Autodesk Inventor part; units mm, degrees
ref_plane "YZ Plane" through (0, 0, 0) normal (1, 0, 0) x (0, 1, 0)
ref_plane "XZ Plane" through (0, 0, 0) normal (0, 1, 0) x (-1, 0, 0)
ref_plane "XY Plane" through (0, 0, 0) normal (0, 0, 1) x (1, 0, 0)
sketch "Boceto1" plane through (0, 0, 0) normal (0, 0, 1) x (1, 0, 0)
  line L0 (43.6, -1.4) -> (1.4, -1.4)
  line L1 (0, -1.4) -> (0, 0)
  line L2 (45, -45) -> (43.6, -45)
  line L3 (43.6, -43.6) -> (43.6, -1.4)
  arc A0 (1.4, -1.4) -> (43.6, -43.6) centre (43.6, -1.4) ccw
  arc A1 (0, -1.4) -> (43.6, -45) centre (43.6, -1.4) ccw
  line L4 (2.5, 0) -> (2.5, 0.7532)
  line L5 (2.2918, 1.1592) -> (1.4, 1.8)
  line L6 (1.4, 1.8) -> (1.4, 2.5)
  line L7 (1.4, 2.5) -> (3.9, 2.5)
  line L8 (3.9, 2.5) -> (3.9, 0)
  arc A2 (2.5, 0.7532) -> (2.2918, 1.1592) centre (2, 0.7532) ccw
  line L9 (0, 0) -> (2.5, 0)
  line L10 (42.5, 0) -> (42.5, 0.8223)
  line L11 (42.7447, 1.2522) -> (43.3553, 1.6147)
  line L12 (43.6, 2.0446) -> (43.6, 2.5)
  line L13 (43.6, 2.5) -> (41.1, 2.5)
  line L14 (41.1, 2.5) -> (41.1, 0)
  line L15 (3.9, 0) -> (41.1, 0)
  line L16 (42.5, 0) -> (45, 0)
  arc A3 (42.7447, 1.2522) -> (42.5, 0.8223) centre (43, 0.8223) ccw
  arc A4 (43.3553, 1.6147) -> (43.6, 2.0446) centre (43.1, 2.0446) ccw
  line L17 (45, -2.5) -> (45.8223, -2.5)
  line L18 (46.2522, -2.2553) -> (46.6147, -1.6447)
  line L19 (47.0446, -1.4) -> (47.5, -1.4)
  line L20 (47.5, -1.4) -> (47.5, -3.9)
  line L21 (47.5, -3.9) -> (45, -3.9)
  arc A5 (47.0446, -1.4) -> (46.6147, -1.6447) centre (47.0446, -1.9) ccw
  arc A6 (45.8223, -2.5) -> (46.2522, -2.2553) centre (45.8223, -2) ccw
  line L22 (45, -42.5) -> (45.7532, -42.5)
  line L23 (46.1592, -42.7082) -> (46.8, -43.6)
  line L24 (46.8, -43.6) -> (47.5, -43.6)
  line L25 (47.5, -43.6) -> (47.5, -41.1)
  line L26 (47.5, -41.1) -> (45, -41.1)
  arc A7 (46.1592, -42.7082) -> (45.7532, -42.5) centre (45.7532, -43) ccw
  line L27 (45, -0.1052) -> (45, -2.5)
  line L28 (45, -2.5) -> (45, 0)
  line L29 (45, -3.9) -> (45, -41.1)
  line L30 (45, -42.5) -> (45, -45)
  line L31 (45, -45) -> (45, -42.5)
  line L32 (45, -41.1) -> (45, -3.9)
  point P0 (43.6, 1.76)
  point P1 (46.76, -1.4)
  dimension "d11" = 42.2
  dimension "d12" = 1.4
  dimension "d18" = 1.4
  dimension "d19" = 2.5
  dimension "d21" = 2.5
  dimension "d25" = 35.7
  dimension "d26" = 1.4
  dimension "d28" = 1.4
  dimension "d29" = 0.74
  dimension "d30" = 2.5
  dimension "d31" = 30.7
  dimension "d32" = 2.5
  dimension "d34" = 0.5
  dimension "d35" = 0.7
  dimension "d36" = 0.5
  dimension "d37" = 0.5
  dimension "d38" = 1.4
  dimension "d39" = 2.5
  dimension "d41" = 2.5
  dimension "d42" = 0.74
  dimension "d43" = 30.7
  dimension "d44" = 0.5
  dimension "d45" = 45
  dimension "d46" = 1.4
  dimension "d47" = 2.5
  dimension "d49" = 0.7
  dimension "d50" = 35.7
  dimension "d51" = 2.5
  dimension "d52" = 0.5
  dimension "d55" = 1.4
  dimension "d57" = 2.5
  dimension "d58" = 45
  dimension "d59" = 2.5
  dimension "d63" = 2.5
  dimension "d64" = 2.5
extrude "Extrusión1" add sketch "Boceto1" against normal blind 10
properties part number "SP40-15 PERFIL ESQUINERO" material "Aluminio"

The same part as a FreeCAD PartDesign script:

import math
import FreeCAD as App
import Part
import Sketcher
from FreeCAD import Vector
Q = App.Units.Quantity

doc = App.newDocument("Part")
body = doc.addObject("PartDesign::Body", "Body")

sketch1 = body.newObject("Sketcher::SketchObject", "Sketch")
sketch1.AttachmentSupport = (doc.getObject("XY_Plane"), [""])
sketch1.MapMode = "FlatFace"
sketch1.addGeometry(Part.LineSegment(Vector(0, 0, 0), Vector(0, -1.4, 0)), False)
sketch1.addGeometry(Part.ArcOfCircle(Part.Circle(Vector(43.6, -1.4, 0), Vector(0, 0, 1), 43.6), math.radians(180), math.radians(270)), False)
sketch1.addGeometry(Part.LineSegment(Vector(43.6, -45, 0), Vector(45, -45, 0)), False)
sketch1.addGeometry(Part.LineSegment(Vector(45, -45, 0), Vector(45, -42.5, 0)), False)
sketch1.addGeometry(Part.LineSegment(Vector(45, -42.5, 0), Vector(45.75, -42.5, 0)), False)
sketch1.addGeometry(Part.ArcOfCircle(Part.Circle(Vector(45.75, -43, 0), Vector(0, 0, 1), 0.5), math.radians(36), math.radians(90)), False)
sketch1.addGeometry(Part.LineSegment(Vector(46.16, -42.71, 0), Vector(46.8, -43.6, 0)), False)
sketch1.addGeometry(Part.LineSegment(Vector(46.8, -43.6, 0), Vector(47.5, -43.6, 0)), False)
sketch1.addGeometry(Part.LineSegment(Vector(47.5, -43.6, 0), Vector(47.5, -41.1, 0)), False)
sketch1.addGeometry(Part.LineSegment(Vector(47.5, -41.1, 0), Vector(45, -41.1, 0)), False)
sketch1.addGeometry(Part.LineSegment(Vector(45, -41.1, 0), Vector(45, -3.9, 0)), False)
sketch1.addGeometry(Part.LineSegment(Vector(45, -3.9, 0), Vector(47.5, -3.9, 0)), False)
sketch1.addGeometry(Part.LineSegment(Vector(47.5, -3.9, 0), Vector(47.5, -1.4, 0)), False)
sketch1.addGeometry(Part.LineSegment(Vector(47.5, -1.4, 0), Vector(47.04, -1.4, 0)), False)
sketch1.addGeometry(Part.ArcOfCircle(Part.Circle(Vector(47.04, -1.9, 0), Vector(0, 0, 1), 0.5), math.radians(90), math.radians(149)), False)
sketch1.addGeometry(Part.LineSegment(Vector(46.61, -1.64, 0), Vector(46.25, -2.26, 0)), False)
sketch1.addGeometry(Part.ArcOfCircle(Part.Circle(Vector(45.82, -2, 0), Vector(0, 0, 1), 0.5), math.radians(-90), math.radians(-31)), False)
sketch1.addGeometry(Part.LineSegment(Vector(45.82, -2.5, 0), Vector(45, -2.5, 0)), False)
sketch1.addGeometry(Part.LineSegment(Vector(45, -2.5, 0), Vector(45, 0, 0)), False)
sketch1.addGeometry(Part.LineSegment(Vector(45, 0, 0), Vector(42.5, 0, 0)), False)
sketch1.addGeometry(Part.LineSegment(Vector(42.5, 0, 0), Vector(42.5, 0.82, 0)), False)
sketch1.addGeometry(Part.ArcOfCircle(Part.Circle(Vector(43, 0.82, 0), Vector(0, 0, 1), 0.5), math.radians(121), math.radians(180)), False)
sketch1.addGeometry(Part.LineSegment(Vector(42.74, 1.25, 0), Vector(43.36, 1.61, 0)), False)
sketch1.addGeometry(Part.ArcOfCircle(Part.Circle(Vector(43.1, 2.04, 0), Vector(0, 0, 1), 0.5), math.radians(-59), math.radians(0)), False)
sketch1.addGeometry(Part.LineSegment(Vector(43.6, 2.04, 0), Vector(43.6, 2.5, 0)), False)
sketch1.addGeometry(Part.LineSegment(Vector(43.6, 2.5, 0), Vector(41.1, 2.5, 0)), False)
sketch1.addGeometry(Part.LineSegment(Vector(41.1, 2.5, 0), Vector(41.1, 0, 0)), False)
sketch1.addGeometry(Part.LineSegment(Vector(41.1, 0, 0), Vector(3.9, 0, 0)), False)
sketch1.addGeometry(Part.LineSegment(Vector(3.9, 0, 0), Vector(3.9, 2.5, 0)), False)
sketch1.addGeometry(Part.LineSegment(Vector(3.9, 2.5, 0), Vector(1.4, 2.5, 0)), False)
sketch1.addGeometry(Part.LineSegment(Vector(1.4, 2.5, 0), Vector(1.4, 1.8, 0)), False)
sketch1.addGeometry(Part.LineSegment(Vector(1.4, 1.8, 0), Vector(2.29, 1.16, 0)), False)
sketch1.addGeometry(Part.ArcOfCircle(Part.Circle(Vector(2, 0.75, 0), Vector(0, 0, 1), 0.5), math.radians(0), math.radians(54)), False)
sketch1.addGeometry(Part.LineSegment(Vector(2.5, 0.75, 0), Vector(2.5, 0, 0)), False)
sketch1.addGeometry(Part.LineSegment(Vector(2.5, 0, 0), Vector(0, 0, 0)), False)
sketch1.addGeometry(Part.LineSegment(Vector(1.4, -1.4, 0), Vector(43.6, -1.4, 0)), False)
sketch1.addGeometry(Part.LineSegment(Vector(43.6, -1.4, 0), Vector(43.6, -43.6, 0)), False)
sketch1.addGeometry(Part.ArcOfCircle(Part.Circle(Vector(43.6, -1.4, 0), Vector(0, 0, 1), 42.2), math.radians(180), math.radians(270)), False)
sketch1.addConstraint(Sketcher.Constraint("Tangent", 0, 2, 1, 1))
sketch1.addConstraint(Sketcher.Constraint("Tangent", 1, 2, 2, 1))
sketch1.addConstraint(Sketcher.Constraint("Coincident", 2, 2, 3, 1))
sketch1.addConstraint(Sketcher.Constraint("Coincident", 3, 2, 4, 1))
sketch1.addConstraint(Sketcher.Constraint("Tangent", 4, 2, 5, 2))
sketch1.addConstraint(Sketcher.Constraint("Tangent", 5, 1, 6, 1))
sketch1.addConstraint(Sketcher.Constraint("Coincident", 6, 2, 7, 1))
sketch1.addConstraint(Sketcher.Constraint("Coincident", 7, 2, 8, 1))
sketch1.addConstraint(Sketcher.Constraint("Coincident", 8, 2, 9, 1))
sketch1.addConstraint(Sketcher.Constraint("Coincident", 9, 2, 10, 1))
sketch1.addConstraint(Sketcher.Constraint("Coincident", 10, 2, 11, 1))
sketch1.addConstraint(Sketcher.Constraint("Coincident", 11, 2, 12, 1))
sketch1.addConstraint(Sketcher.Constraint("Coincident", 12, 2, 13, 1))
sketch1.addConstraint(Sketcher.Constraint("Tangent", 13, 2, 14, 1))
sketch1.addConstraint(Sketcher.Constraint("Tangent", 14, 2, 15, 1))
sketch1.addConstraint(Sketcher.Constraint("Tangent", 15, 2, 16, 2))
sketch1.addConstraint(Sketcher.Constraint("Tangent", 16, 1, 17, 1))
sketch1.addConstraint(Sketcher.Constraint("Coincident", 17, 2, 18, 1))
sketch1.addConstraint(Sketcher.Constraint("Coincident", 18, 2, 19, 1))
sketch1.addConstraint(Sketcher.Constraint("Coincident", 19, 2, 20, 1))
sketch1.addConstraint(Sketcher.Constraint("Tangent", 20, 2, 21, 2))
sketch1.addConstraint(Sketcher.Constraint("Tangent", 21, 1, 22, 1))
sketch1.addConstraint(Sketcher.Constraint("Tangent", 22, 2, 23, 1))
sketch1.addConstraint(Sketcher.Constraint("Tangent", 23, 2, 24, 1))
sketch1.addConstraint(Sketcher.Constraint("Coincident", 24, 2, 25, 1))
sketch1.addConstraint(Sketcher.Constraint("Coincident", 25, 2, 26, 1))
sketch1.addConstraint(Sketcher.Constraint("Coincident", 26, 2, 27, 1))
sketch1.addConstraint(Sketcher.Constraint("Coincident", 27, 2, 28, 1))
sketch1.addConstraint(Sketcher.Constraint("Coincident", 28, 2, 29, 1))
sketch1.addConstraint(Sketcher.Constraint("Coincident", 29, 2, 30, 1))
sketch1.addConstraint(Sketcher.Constraint("Coincident", 30, 2, 31, 1))
sketch1.addConstraint(Sketcher.Constraint("Tangent", 31, 2, 32, 2))
sketch1.addConstraint(Sketcher.Constraint("Tangent", 32, 1, 33, 1))
sketch1.addConstraint(Sketcher.Constraint("Coincident", 33, 2, 34, 1))
sketch1.addConstraint(Sketcher.Constraint("Coincident", 34, 2, 0, 1))
sketch1.addConstraint(Sketcher.Constraint("Coincident", 35, 2, 36, 1))
sketch1.addConstraint(Sketcher.Constraint("Coincident", 36, 2, 37, 2))
sketch1.addConstraint(Sketcher.Constraint("Coincident", 37, 1, 35, 1))
sketch1.addConstraint(Sketcher.Constraint("Vertical", 0))
sketch1.addConstraint(Sketcher.Constraint("Horizontal", 2))
sketch1.addConstraint(Sketcher.Constraint("Vertical", 3))
sketch1.addConstraint(Sketcher.Constraint("Horizontal", 4))
sketch1.addConstraint(Sketcher.Constraint("Horizontal", 7))
sketch1.addConstraint(Sketcher.Constraint("Vertical", 8))
sketch1.addConstraint(Sketcher.Constraint("Horizontal", 9))
sketch1.addConstraint(Sketcher.Constraint("Vertical", 10))
sketch1.addConstraint(Sketcher.Constraint("Horizontal", 11))
sketch1.addConstraint(Sketcher.Constraint("Vertical", 12))
sketch1.addConstraint(Sketcher.Constraint("Horizontal", 13))
sketch1.addConstraint(Sketcher.Constraint("Horizontal", 17))
sketch1.addConstraint(Sketcher.Constraint("Vertical", 18))
sketch1.addConstraint(Sketcher.Constraint("Horizontal", 19))
sketch1.addConstraint(Sketcher.Constraint("Vertical", 20))
sketch1.addConstraint(Sketcher.Constraint("Vertical", 24))
sketch1.addConstraint(Sketcher.Constraint("Horizontal", 25))
sketch1.addConstraint(Sketcher.Constraint("Vertical", 26))
sketch1.addConstraint(Sketcher.Constraint("Horizontal", 27))
sketch1.addConstraint(Sketcher.Constraint("Vertical", 28))
sketch1.addConstraint(Sketcher.Constraint("Horizontal", 29))
sketch1.addConstraint(Sketcher.Constraint("Vertical", 30))
sketch1.addConstraint(Sketcher.Constraint("Vertical", 33))
sketch1.addConstraint(Sketcher.Constraint("Horizontal", 34))
sketch1.addConstraint(Sketcher.Constraint("Horizontal", 35))
sketch1.addConstraint(Sketcher.Constraint("Vertical", 36))
sketch1.addConstraint(Sketcher.Constraint("Coincident", 34, 2, -1, 1))
sketch1.addConstraint(Sketcher.Constraint("Coincident", 37, 3, 1, 3))
sketch1.addConstraint(Sketcher.Constraint("Coincident", 35, 2, 1, 3))
sketch1.addConstraint(Sketcher.Constraint("Equal", 5, 14))
sketch1.addConstraint(Sketcher.Constraint("Equal", 14, 16))
sketch1.addConstraint(Sketcher.Constraint("Equal", 16, 21))
sketch1.addConstraint(Sketcher.Constraint("Equal", 21, 23))
sketch1.addConstraint(Sketcher.Constraint("Equal", 23, 32))
sketch1.addConstraint(Sketcher.Constraint("PointOnObject", 18, 2, -1))
sketch1.addConstraint(Sketcher.Constraint("PointOnObject", 26, 2, -1))
sketch1.addConstraint(Sketcher.Constraint("Horizontal", 0, 2, 12, 2))
sketch1.addConstraint(Sketcher.Constraint("Horizontal", 25, 2, 28, 2))
sketch1.addConstraint(Sketcher.Constraint("Horizontal", 7, 2, 36, 2))
sketch1.addConstraint(Sketcher.Constraint("Vertical", 3, 2, 9, 2))
sketch1.addConstraint(Sketcher.Constraint("Vertical", 8, 2, 11, 2))
sketch1.addConstraint(Sketcher.Constraint("Vertical", 10, 2, 17, 2))
sketch1.addConstraint(Sketcher.Constraint("Vertical", 1, 2, 23, 2))
sketch1.addConstraint(Sketcher.Constraint("Vertical", 30, 2, 37, 1))
sketch1.addConstraint(Sketcher.Constraint("Equal", 11, 19))
sketch1.addConstraint(Sketcher.Constraint("Equal", 19, 25))
sketch1.addConstraint(Sketcher.Constraint("Equal", 25, 29))
sketch1.addConstraint(Sketcher.Constraint("Equal", 29, 34))
sketch1.addConstraint(Sketcher.Constraint("Equal", 2, 0))
sketch1.addConstraint(Sketcher.Constraint("Equal", 34, 3))
sketch1.addConstraint(Sketcher.Constraint("Equal", 3, 8))
sketch1.addConstraint(Sketcher.Constraint("Equal", 27, 10))
sketch1.addConstraint(Sketcher.Constraint("Equal", 12, 18))
sketch1.addConstraint(Sketcher.Constraint("Equal", 17, 20))
sketch1.addConstraint(Sketcher.Constraint("Equal", 13, 24))
sketch1.addConstraint(Sketcher.Constraint("Equal", 18, 26))
sketch1.addConstraint(Sketcher.Constraint("Equal", 7, 30))
sketch1.addConstraint(Sketcher.Constraint("Equal", 4, 33))
sketch1.addConstraint(Sketcher.Constraint("Radius", 5, 0.5))
sketch1.addConstraint(Sketcher.Constraint("Radius", 37, 42.2))
sketch1.addConstraint(Sketcher.Constraint("DistanceX", 2, 1, 2, 2, 1.4))
sketch1.addConstraint(Sketcher.Constraint("DistanceX", 7, 1, 7, 2, 0.7))
sketch1.addConstraint(Sketcher.Constraint("DistanceX", 9, 2, 9, 1, 2.5))
sketch1.addConstraint(Sketcher.Constraint("DistanceY", 1, 2, -1, 1, 45.0))
sketch1.addConstraint(Sketcher.Constraint("Angle", 6, Q("-54.301 deg")))
sketch1.addConstraint(Sketcher.Constraint("Distance", 15, 0.71))
sketch1.addConstraint(Sketcher.Constraint("DistanceX", 13, 2, 13, 1, 0.4554))
pad1 = body.newObject("PartDesign::Pad", "Pad")
pad1.Profile = sketch1
pad1.Length = 10
pad1.Reversed = True

doc.recompute()
